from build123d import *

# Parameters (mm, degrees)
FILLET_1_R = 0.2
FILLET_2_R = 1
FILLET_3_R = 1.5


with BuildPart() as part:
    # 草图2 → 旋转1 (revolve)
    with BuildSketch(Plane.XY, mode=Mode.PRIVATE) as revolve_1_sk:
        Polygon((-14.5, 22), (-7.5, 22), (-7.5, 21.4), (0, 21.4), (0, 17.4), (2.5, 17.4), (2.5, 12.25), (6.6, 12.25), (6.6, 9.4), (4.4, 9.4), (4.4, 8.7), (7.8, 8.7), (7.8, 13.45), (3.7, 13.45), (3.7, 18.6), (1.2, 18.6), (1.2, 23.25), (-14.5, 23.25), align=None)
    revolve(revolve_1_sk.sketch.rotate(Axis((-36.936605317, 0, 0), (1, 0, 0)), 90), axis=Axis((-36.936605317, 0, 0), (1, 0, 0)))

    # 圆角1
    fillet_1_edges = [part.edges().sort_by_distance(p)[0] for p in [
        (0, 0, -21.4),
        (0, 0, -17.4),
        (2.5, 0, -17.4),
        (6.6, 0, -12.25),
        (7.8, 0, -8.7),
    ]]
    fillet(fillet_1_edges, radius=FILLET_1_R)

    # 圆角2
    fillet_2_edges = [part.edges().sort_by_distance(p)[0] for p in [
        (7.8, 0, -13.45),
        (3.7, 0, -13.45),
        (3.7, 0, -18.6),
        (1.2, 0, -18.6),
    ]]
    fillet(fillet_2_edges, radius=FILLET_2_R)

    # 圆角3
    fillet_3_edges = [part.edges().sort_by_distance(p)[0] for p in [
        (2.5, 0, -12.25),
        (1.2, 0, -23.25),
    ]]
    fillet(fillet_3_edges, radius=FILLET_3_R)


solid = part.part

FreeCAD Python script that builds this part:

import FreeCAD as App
import Part
import Sketcher


def edges_at(feature, points):
    """Names of the edges that pass closest to the given points."""
    edges = feature.Shape.Edges
    near = lambda p: min(range(len(edges)), key=lambda i: edges[i].distToShape(Part.Vertex(*p))[0])
    return sorted({f"Edge{near(p) + 1}" for p in points})


def add_polygon(sketch, points):
    """Adds a closed chain of lines whose ends are joined by coincident constraints."""
    first, n = sketch.GeometryCount, len(points)
    for a, b in zip(points, points[1:] + points[:1]):
        sketch.addGeometry(Part.LineSegment(App.Vector(*a, 0), App.Vector(*b, 0)), False)
    for i in range(n):
        sketch.addConstraint(Sketcher.Constraint("Coincident", first + i, 2, first + (i + 1) % n, 1))

doc = App.newDocument("Part")
body = doc.addObject("PartDesign::Body", "Body")

# Sketch on XY plane
sketch1 = body.newObject("Sketcher::SketchObject", "Sketch")
sketch1.AttachmentSupport = (doc.getObject("XY_Plane"), [""])
sketch1.MapMode = "FlatFace"
add_polygon(sketch1, [(-14.5, 22), (-7.5, 22), (-7.5, 21.4), (0, 21.4), (0, 17.4), (2.5, 17.4), (2.5, 12.25), (6.6, 12.25), (6.6, 9.4), (4.4, 9.4), (4.4, 8.7), (7.8, 8.7), (7.8, 13.45), (3.7, 13.45), (3.7, 18.6), (1.2, 18.6), (1.2, 23.25), (-14.5, 23.25)])  # lines 0-17
sketch1.addConstraint(Sketcher.Constraint("Horizontal", 0))
sketch1.addConstraint(Sketcher.Constraint("Vertical", 1))
sketch1.addConstraint(Sketcher.Constraint("Horizontal", 2))
sketch1.addConstraint(Sketcher.Constraint("Vertical", 3))
sketch1.addConstraint(Sketcher.Constraint("Horizontal", 4))
sketch1.addConstraint(Sketcher.Constraint("Vertical", 5))
sketch1.addConstraint(Sketcher.Constraint("Horizontal", 6))
sketch1.addConstraint(Sketcher.Constraint("Vertical", 7))
sketch1.addConstraint(Sketcher.Constraint("Horizontal", 8))
sketch1.addConstraint(Sketcher.Constraint("Vertical", 9))
sketch1.addConstraint(Sketcher.Constraint("Horizontal", 10))
sketch1.addConstraint(Sketcher.Constraint("Vertical", 11))
sketch1.addConstraint(Sketcher.Constraint("Horizontal", 12))
sketch1.addConstraint(Sketcher.Constraint("Vertical", 13))
sketch1.addConstraint(Sketcher.Constraint("Horizontal", 14))
sketch1.addConstraint(Sketcher.Constraint("Vertical", 15))
sketch1.addConstraint(Sketcher.Constraint("Horizontal", 16))
sketch1.addConstraint(Sketcher.Constraint("Vertical", 17))
sketch1.addConstraint(Sketcher.Constraint("PointOnObject", 2, 2, -2))
sketch1.addConstraint(Sketcher.Constraint("Equal", 6, 12))
sketch1.addConstraint(Sketcher.Constraint("Equal", 4, 14))
sketch1.addConstraint(Sketcher.Constraint("Equal", 5, 13))
sketch1.addConstraint(Sketcher.Constraint("DistanceX", 0, 1, 0, 2, 7.0))
sketch1.addConstraint(Sketcher.Constraint("DistanceY", 3, 2, 3, 1, 4.0))
sketch1.addConstraint(Sketcher.Constraint("DistanceX", 2, 1, 2, 2, 7.5))
sketch1.addConstraint(Sketcher.Constraint("DistanceX", 4, 1, 4, 2, 2.5))
sketch1.addConstraint(Sketcher.Constraint("DistanceX", 6, 1, 6, 2, 4.1))
sketch1.addConstraint(Sketcher.Constraint("DistanceX", 8, 2, 8, 1, 2.2))
sketch1.addConstraint(Sketcher.Constraint("DistanceX", 10, 1, 10, 2, 3.4))
sketch1.addConstraint(Sketcher.Constraint("DistanceY", 1, 2, 1, 1, 0.6))
sketch1.addConstraint(Sketcher.Constraint("DistanceY", 9, 2, 9, 1, 0.7))
sketch1.addConstraint(Sketcher.Constraint("DistanceY", -1, 1, 0, 2, 22.0))
sketch1.addConstraint(Sketcher.Constraint("DistanceY", 7, 2, 4, 2, 8.0))
sketch1.addConstraint(Sketcher.Constraint("DistanceY", 5, 2, 5, 1, 5.15))
sketch1.addConstraint(Sketcher.Constraint("DistanceY", 11, 1, 11, 2, 4.75))
sketch1.addConstraint(Sketcher.Constraint("DistanceY", 15, 1, 15, 2, 4.65))
revolution = body.newObject("PartDesign::Revolution", "Revolution")
revolution.Profile = sketch1
revolution.ReferenceAxis = (sketch1, ["H_Axis"])
revolution.Angle = 360
doc.recompute()

fillet = body.newObject("PartDesign::Fillet", "Fillet")
fillet.Base = (revolution, edges_at(revolution, [
    (0, 0, -21.4),
    (0, 0, -17.4),
    (2.5, 0, -17.4),
    (6.6, 0, -12.25),
    (7.8, 0, -8.7),
]))
fillet.Radius = 0.2
doc.recompute()

fillet2 = body.newObject("PartDesign::Fillet", "Fillet001")
fillet2.Base = (fillet, edges_at(fillet, [
    (7.8, 0, -13.45),
    (3.7, 0, -13.45),
    (3.7, 0, -18.6),
    (1.2, 0, -18.6),
]))
fillet2.Radius = 1
doc.recompute()

fillet3 = body.newObject("PartDesign::Fillet", "Fillet002")
fillet3.Base = (fillet2, edges_at(fillet2, [(2.5, 0, -12.25), (1.2, 0, -23.25)]))
fillet3.Radius = 1.5

doc.recompute()
